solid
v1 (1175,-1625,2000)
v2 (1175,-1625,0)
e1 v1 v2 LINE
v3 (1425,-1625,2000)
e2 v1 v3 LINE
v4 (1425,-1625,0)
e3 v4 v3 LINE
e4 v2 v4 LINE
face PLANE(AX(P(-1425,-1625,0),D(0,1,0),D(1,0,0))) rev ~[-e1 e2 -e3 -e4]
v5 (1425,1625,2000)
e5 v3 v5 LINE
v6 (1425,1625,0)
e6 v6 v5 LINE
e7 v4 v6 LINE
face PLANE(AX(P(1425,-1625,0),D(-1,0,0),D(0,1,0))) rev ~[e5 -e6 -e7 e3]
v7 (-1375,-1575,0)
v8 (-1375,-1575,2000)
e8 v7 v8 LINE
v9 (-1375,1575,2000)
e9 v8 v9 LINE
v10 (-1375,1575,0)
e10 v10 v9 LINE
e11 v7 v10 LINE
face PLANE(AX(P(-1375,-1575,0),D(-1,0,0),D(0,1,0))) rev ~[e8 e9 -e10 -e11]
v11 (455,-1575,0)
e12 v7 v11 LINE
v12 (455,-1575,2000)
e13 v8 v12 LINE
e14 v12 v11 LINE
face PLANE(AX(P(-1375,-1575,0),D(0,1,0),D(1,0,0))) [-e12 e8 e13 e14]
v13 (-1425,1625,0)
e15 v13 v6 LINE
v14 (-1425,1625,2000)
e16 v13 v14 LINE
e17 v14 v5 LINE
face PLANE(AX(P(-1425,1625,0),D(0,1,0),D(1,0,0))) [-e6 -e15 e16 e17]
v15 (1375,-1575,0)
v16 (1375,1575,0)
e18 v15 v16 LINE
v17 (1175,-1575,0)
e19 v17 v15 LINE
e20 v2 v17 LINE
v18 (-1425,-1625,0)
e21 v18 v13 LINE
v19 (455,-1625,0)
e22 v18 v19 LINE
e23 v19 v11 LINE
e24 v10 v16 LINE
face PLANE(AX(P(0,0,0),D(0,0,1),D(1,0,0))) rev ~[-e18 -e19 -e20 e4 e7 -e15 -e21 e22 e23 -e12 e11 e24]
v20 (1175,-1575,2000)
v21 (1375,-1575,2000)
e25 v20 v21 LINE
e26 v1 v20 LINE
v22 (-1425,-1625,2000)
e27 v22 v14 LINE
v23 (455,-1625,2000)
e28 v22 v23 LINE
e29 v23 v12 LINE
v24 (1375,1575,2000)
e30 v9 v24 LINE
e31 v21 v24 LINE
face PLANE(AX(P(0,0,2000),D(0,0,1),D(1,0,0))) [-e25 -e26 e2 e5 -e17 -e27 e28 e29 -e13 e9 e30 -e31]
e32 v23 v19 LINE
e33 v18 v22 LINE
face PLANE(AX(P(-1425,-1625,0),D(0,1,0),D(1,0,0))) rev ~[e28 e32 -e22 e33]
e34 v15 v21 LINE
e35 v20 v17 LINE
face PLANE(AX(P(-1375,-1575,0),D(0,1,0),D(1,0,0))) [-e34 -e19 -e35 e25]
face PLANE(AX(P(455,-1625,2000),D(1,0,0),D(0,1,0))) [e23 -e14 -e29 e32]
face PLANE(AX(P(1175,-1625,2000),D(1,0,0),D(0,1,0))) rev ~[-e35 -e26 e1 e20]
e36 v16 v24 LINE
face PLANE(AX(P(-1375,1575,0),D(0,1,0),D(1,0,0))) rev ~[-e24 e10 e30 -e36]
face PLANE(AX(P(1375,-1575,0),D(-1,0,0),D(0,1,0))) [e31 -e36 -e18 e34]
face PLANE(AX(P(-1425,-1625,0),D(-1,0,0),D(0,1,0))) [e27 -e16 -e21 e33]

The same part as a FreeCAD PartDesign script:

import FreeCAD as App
import Part
import Sketcher

V = App.Vector


def add_polygon(sketch, points):
    """Adds a closed chain of lines whose ends are joined by coincident constraints."""
    first, n = sketch.GeometryCount, len(points)
    for a, b in zip(points, points[1:] + points[:1]):
        sketch.addGeometry(Part.LineSegment(App.Vector(*a, 0), App.Vector(*b, 0)), False)
    for i in range(n):
        sketch.addConstraint(Sketcher.Constraint("Coincident", first + i, 2, first + (i + 1) % n, 1))

doc = App.newDocument("Part")
body = doc.addObject("PartDesign::Body", "Body")

# Sketch on XY plane
sketch1 = doc.addObject("Sketcher::SketchObject", "Sketch")
body.addObject(sketch1)
sketch1.AttachmentSupport = (doc.XY_Plane, [""])
sketch1.MapMode = "FlatFace"
add_polygon(sketch1, [(-1425, 1625), (-1425, -1625), (1425, -1625), (1425, 1625)])  # lines 0-3
add_polygon(sketch1, [(1375, -1575), (-1375, -1575), (-1375, 1575), (1375, 1575)])  # lines 4-7
sketch1.addConstraint(Sketcher.Constraint("Vertical", 0))
sketch1.addConstraint(Sketcher.Constraint("Horizontal", 1))
sketch1.addConstraint(Sketcher.Constraint("Vertical", 2))
sketch1.addConstraint(Sketcher.Constraint("Horizontal", 3))
sketch1.addConstraint(Sketcher.Constraint("Horizontal", 4))
sketch1.addConstraint(Sketcher.Constraint("Vertical", 5))
sketch1.addConstraint(Sketcher.Constraint("Horizontal", 6))
sketch1.addConstraint(Sketcher.Constraint("Vertical", 7))
sketch1.addConstraint(Sketcher.Constraint("Symmetric", 0, 2, 2, 2, -1, 1))
sketch1.addConstraint(Sketcher.Constraint("Symmetric", 4, 2, 6, 2, -1, 1))
sketch1.addConstraint(Sketcher.Constraint("DistanceX", 1, 1, 1, 2, 2850.0))
sketch1.addConstraint(Sketcher.Constraint("DistanceX", 4, 2, 4, 1, 2750.0))
sketch1.addConstraint(Sketcher.Constraint("DistanceY", 0, 2, 0, 1, 3250.0))
sketch1.addConstraint(Sketcher.Constraint("DistanceY", 5, 1, 5, 2, 3150.0))
pad1 = doc.addObject("PartDesign::Pad", "Pad")
body.addObject(pad1)
pad1.Profile = sketch1
pad1.Length = 2000

# Sketch on XY plane
sketch2 = doc.addObject("Sketcher::SketchObject", "Sketch001")
body.addObject(sketch2)
sketch2.AttachmentSupport = (doc.XY_Plane, [""])
sketch2.MapMode = "FlatFace"
sketch2.AttachmentOffset = App.Placement(V(0, 0, 2000), App.Rotation())
add_polygon(sketch2, [(455, -1575), (455, -1625), (1175, -1625), (1175, -1575)])  # lines 0-3
sketch2.addConstraint(Sketcher.Constraint("Vertical", 0))
sketch2.addConstraint(Sketcher.Constraint("Horizontal", 1))
sketch2.addConstraint(Sketcher.Constraint("Vertical", 2))
sketch2.addConstraint(Sketcher.Constraint("Horizontal", 3))
sketch2.addConstraint(Sketcher.Constraint("DistanceX", 1, 1, 1, 2, 720.0))
sketch2.addConstraint(Sketcher.Constraint("DistanceY", 0, 2, 0, 1, 50.0))
sketch2.addConstraint(Sketcher.Constraint("DistanceX", -1, 1, 0, 2, 455.0))
sketch2.addConstraint(Sketcher.Constraint("DistanceY", 0, 2, -1, 1, 1625.0))
pocket1 = doc.addObject("PartDesign::Pocket", "Pocket")
body.addObject(pocket1)
pocket1.Profile = sketch2
pocket1.Type = "ThroughAll"

doc.recompute()
